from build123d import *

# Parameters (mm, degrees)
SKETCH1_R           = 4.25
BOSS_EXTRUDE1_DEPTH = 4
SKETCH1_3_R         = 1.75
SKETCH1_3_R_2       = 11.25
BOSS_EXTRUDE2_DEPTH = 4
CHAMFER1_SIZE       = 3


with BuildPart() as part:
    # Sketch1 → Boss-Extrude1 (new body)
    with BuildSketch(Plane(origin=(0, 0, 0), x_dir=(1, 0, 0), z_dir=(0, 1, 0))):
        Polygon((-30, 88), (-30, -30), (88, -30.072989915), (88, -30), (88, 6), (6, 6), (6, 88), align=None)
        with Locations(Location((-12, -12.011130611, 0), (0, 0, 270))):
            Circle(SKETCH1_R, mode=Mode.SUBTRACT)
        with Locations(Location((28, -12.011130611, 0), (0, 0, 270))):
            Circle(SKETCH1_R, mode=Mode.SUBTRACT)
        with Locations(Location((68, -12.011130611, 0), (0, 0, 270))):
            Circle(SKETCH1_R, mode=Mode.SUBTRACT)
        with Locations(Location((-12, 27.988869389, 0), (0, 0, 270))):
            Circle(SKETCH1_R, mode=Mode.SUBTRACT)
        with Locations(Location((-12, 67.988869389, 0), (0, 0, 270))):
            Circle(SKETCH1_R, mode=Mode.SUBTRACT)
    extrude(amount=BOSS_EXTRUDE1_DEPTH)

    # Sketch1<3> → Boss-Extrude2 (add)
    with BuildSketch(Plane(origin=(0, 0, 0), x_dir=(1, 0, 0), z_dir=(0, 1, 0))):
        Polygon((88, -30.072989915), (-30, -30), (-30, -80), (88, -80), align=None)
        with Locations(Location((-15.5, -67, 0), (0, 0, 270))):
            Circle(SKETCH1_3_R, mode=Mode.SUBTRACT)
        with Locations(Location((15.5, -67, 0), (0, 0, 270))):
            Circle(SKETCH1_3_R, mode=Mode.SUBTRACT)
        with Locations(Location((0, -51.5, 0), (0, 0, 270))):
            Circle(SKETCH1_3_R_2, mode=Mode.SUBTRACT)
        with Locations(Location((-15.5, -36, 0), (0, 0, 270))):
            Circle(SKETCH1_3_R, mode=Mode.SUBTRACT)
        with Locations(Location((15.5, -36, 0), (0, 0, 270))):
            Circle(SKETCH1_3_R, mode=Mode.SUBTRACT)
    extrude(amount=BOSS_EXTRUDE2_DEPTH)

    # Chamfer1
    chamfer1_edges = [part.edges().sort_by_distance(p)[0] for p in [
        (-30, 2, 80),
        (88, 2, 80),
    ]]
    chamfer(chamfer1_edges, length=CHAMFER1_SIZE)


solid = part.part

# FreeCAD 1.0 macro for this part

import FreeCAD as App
import Part
import Sketcher
Q = App.Units.Quantity


def edges_at(feature, points):
    """Names of the edges that pass closest to the given points."""
    edges = feature.Shape.Edges
    near = lambda p: min(range(len(edges)), key=lambda i: edges[i].distToShape(Part.Vertex(*p))[0])
    return sorted({f"Edge{near(p) + 1}" for p in points})


def add_polygon(sketch, points):
    """Adds a closed chain of lines whose ends are joined by coincident constraints."""
    first, n = sketch.GeometryCount, len(points)
    for a, b in zip(points, points[1:] + points[:1]):
        sketch.addGeometry(Part.LineSegment(App.Vector(*a, 0), App.Vector(*b, 0)), False)
    for i in range(n):
        sketch.addConstraint(Sketcher.Constraint("Coincident", first + i, 2, first + (i + 1) % n, 1))

doc = App.newDocument("Part")
body = doc.addObject("PartDesign::Body", "Body")

# Sketch on XZ plane
sketch1 = body.newObject("Sketcher::SketchObject", "Sketch")
sketch1.AttachmentSupport = (doc.getObject("XZ_Plane"), [""])
sketch1.MapMode = "FlatFace"
add_polygon(sketch1, [(-30, -88), (-30, 30), (88, 30.1), (88, -6), (6, -6), (6, -88)])  # lines 0-5
sketch1.addGeometry(Part.Circle(App.Vector(-12, 12, 0), App.Vector(0, 0, 1), 4.2), False)  # 6
sketch1.addGeometry(Part.Circle(App.Vector(28, 12, 0), App.Vector(0, 0, 1), 4.2), False)  # 7
sketch1.addGeometry(Part.Circle(App.Vector(68, 12, 0), App.Vector(0, 0, 1), 4.2), False)  # 8
sketch1.addGeometry(Part.Circle(App.Vector(-12, -28, 0), App.Vector(0, 0, 1), 4.2), False)  # 9
sketch1.addGeometry(Part.Circle(App.Vector(-12, -68, 0), App.Vector(0, 0, 1), 4.2), False)  # 10
sketch1.addConstraint([
    Sketcher.Constraint("Vertical", 0),
    Sketcher.Constraint("Vertical", 2),
    Sketcher.Constraint("Horizontal", 3),
    Sketcher.Constraint("Vertical", 4),
    Sketcher.Constraint("Horizontal", 5),
    Sketcher.Constraint("Equal", 6, 7),
    Sketcher.Constraint("Equal", 7, 8),
    Sketcher.Constraint("Equal", 8, 9),
    Sketcher.Constraint("Equal", 9, 10),
    Sketcher.Constraint("Horizontal", 6, 3, 7, 3),
    Sketcher.Constraint("Horizontal", 7, 3, 8, 3),
    Sketcher.Constraint("Vertical", 6, 3, 9, 3),
    Sketcher.Constraint("Vertical", 9, 3, 10, 3),
    Sketcher.Constraint("Equal", 3, 4),
    Sketcher.Constraint("Diameter", 6, Q("8.5 mm")),
    Sketcher.Constraint("DistanceX", 3, 2, 3, 1, Q("82 mm")),
    Sketcher.Constraint("DistanceX", 5, 2, 5, 1, Q("36 mm")),
    Sketcher.Constraint("DistanceY", 0, 1, 0, 2, Q("118 mm")),
    Sketcher.Constraint("DistanceX", 6, 3, -1, 1, Q("12 mm")),
    Sketcher.Constraint("DistanceX", -1, 1, 7, 3, Q("28 mm")),
    Sketcher.Constraint("DistanceX", -1, 1, 8, 3, Q("68 mm")),
    Sketcher.Constraint("DistanceX", 0, 2, -1, 1, Q("30 mm")),
    Sketcher.Constraint("DistanceY", -1, 1, 0, 2, Q("30 mm")),
    Sketcher.Constraint("DistanceY", 9, 3, 6, 3, Q("40 mm")),
    Sketcher.Constraint("DistanceY", 10, 3, 9, 3, Q("40 mm")),
    Sketcher.Constraint("DistanceY", 2, 2, 2, 1, Q("36.07299 mm")),
    Sketcher.Constraint("DistanceY", -1, 1, 6, 3, Q("12.011131 mm")),
])
pad1 = body.newObject("PartDesign::Pad", "Pad")
pad1.Profile = sketch1
pad1.Length = 4
pad1.Reversed = True

# Sketch on XZ plane
sketch2 = body.newObject("Sketcher::SketchObject", "Sketch001")
sketch2.AttachmentSupport = (doc.getObject("XZ_Plane"), [""])
sketch2.MapMode = "FlatFace"
add_polygon(sketch2, [(88, 30.1), (-30, 30), (-30, 80), (88, 80)])  # lines 0-3
sketch2.addGeometry(Part.Circle(App.Vector(-15.5, 67, 0), App.Vector(0, 0, 1), 1.8), False)  # 4
sketch2.addGeometry(Part.Circle(App.Vector(15.5, 67, 0), App.Vector(0, 0, 1), 1.8), False)  # 5
sketch2.addGeometry(Part.Circle(App.Vector(-15.5, 36, 0), App.Vector(0, 0, 1), 1.8), False)  # 6
sketch2.addGeometry(Part.Circle(App.Vector(0, 51.5, 0), App.Vector(0, 0, 1), 11.2), False)  # 7
sketch2.addGeometry(Part.Circle(App.Vector(15.5, 36, 0), App.Vector(0, 0, 1), 1.8), False)  # 8
sketch2.addConstraint([
    Sketcher.Constraint("Vertical", 1),
    Sketcher.Constraint("Horizontal", 2),
    Sketcher.Constraint("Vertical", 3),
    Sketcher.Constraint("Equal", 4, 5),
    Sketcher.Constraint("Equal", 5, 6),
    Sketcher.Constraint("Equal", 6, 8),
    Sketcher.Constraint("Symmetric", 4, 3, 5, 3, -2),
    Sketcher.Constraint("Symmetric", 6, 3, 8, 3, -2),
    Sketcher.Constraint("PointOnObject", 7, 3, -2),
    Sketcher.Constraint("Vertical", 4, 3, 6, 3),
    Sketcher.Constraint("Diameter", 4, Q("3.5 mm")),
    Sketcher.Constraint("Diameter", 7, Q("22.5 mm")),
    Sketcher.Constraint("DistanceX", 2, 1, 2, 2, Q("118 mm")),
    Sketcher.Constraint("DistanceY", 1, 1, 1, 2, Q("50 mm")),
    Sketcher.Constraint("DistanceY", -1, 1, 4, 3, Q("67 mm")),
    Sketcher.Constraint("DistanceY", -1, 1, 6, 3, Q("36 mm")),
    Sketcher.Constraint("DistanceX", 0, 2, -1, 1, Q("30 mm")),
    Sketcher.Constraint("DistanceY", -1, 1, 0, 2, Q("30 mm")),
    Sketcher.Constraint("DistanceX", 4, 3, 5, 3, Q("31 mm")),
    Sketcher.Constraint("DistanceY", -1, 1, 7, 3, Q("51.5 mm")),
    Sketcher.Constraint("DistanceY", 3, 2, 3, 1, Q("49.92701 mm")),
])
pad2 = body.newObject("PartDesign::Pad", "Pad001")
pad2.Profile = sketch2
pad2.Length = 4
pad2.Reversed = True
doc.recompute()

chamfer = body.newObject("PartDesign::Chamfer", "Chamfer")
chamfer.Base = (pad2, edges_at(pad2, [(-30, 2, 80), (88, 2, 80)]))
chamfer.Size = 3

doc.recompute()
